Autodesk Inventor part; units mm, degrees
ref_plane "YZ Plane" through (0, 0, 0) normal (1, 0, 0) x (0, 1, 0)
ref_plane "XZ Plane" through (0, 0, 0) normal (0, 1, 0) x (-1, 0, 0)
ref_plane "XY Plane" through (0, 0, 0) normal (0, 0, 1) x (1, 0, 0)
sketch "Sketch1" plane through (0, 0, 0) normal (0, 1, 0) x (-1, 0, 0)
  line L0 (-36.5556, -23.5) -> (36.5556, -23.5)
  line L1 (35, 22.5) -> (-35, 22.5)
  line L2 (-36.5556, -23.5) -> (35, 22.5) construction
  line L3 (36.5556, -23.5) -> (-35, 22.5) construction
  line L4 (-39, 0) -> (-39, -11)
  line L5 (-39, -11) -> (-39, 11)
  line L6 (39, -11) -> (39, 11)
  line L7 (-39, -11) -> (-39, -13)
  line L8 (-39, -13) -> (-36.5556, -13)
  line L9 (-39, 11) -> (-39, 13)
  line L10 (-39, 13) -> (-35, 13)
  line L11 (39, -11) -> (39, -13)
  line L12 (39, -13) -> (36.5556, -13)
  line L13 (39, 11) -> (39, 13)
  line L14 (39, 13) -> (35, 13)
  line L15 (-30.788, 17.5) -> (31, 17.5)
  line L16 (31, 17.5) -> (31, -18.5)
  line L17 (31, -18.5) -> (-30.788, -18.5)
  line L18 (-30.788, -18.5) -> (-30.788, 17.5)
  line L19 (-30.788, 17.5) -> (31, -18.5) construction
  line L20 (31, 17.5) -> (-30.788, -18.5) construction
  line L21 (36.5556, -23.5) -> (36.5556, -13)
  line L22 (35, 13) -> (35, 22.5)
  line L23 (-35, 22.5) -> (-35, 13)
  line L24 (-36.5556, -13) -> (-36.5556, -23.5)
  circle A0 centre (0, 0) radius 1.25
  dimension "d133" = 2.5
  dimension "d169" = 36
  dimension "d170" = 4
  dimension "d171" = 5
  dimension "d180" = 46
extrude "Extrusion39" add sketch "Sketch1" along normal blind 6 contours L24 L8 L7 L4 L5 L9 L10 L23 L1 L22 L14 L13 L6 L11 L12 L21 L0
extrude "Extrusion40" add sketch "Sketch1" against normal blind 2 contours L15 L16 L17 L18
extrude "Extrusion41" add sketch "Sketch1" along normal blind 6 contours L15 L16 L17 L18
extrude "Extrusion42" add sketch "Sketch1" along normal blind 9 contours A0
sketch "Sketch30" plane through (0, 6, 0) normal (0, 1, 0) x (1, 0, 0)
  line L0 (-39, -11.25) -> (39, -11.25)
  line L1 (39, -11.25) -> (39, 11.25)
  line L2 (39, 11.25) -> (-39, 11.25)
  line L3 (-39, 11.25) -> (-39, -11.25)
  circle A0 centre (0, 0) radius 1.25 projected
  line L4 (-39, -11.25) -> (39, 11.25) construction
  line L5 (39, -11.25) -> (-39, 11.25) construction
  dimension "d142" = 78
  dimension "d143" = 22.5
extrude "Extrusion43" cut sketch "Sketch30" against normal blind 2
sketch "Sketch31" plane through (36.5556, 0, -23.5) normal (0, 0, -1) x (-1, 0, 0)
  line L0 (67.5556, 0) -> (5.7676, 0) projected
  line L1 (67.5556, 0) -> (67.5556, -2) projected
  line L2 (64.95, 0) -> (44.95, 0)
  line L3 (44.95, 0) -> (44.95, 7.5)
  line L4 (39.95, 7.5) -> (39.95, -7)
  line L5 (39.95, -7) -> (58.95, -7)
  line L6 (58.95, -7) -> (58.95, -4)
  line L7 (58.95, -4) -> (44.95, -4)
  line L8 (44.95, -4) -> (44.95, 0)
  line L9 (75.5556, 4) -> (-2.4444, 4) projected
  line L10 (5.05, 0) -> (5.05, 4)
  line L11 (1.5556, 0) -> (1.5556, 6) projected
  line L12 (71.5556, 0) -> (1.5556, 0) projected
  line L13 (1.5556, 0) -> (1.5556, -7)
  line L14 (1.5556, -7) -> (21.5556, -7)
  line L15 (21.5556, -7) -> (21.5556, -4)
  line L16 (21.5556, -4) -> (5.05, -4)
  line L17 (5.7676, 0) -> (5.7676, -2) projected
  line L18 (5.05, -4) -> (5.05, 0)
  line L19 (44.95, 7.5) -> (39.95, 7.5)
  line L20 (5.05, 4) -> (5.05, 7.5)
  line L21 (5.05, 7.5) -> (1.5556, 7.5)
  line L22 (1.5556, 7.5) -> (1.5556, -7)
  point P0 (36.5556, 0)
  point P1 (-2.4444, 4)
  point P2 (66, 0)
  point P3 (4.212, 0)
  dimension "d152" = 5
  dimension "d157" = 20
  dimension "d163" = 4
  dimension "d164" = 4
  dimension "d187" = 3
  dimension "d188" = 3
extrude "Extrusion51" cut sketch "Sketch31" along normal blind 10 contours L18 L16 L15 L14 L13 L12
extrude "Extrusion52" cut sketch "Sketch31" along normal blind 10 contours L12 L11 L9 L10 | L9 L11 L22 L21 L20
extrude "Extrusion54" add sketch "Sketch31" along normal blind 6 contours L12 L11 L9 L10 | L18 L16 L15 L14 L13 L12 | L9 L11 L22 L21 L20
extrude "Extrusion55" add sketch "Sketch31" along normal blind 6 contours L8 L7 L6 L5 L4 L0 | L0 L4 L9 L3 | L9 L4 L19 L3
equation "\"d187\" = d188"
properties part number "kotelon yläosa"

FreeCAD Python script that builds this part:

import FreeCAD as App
import Part
import Sketcher
from FreeCAD import Vector

doc = App.newDocument("Part")
params = doc.addObject("Spreadsheet::Sheet", "Params")
for row, (alias, value) in enumerate([
    ("sketch1_width", "4 mm"),
    ("sketch1_height", "36 mm"),
    ("sketch1_width2", "70 mm"),
    ("sketch1_height2", "26 mm"),
    ("sketch1_height3", "10.5 mm"),
    ("pad1_length", "6 mm"),
    ("sketch2_diameter", "2.5 mm"),
    ("sketch2_height", "36 mm"),
    ("pad2_length", "2 mm"),
    ("sketch3_diameter", "2.5 mm"),
    ("sketch3_height", "36 mm"),
    ("pad3_length", "6 mm"),
    ("sketch4_diameter", "2.5 mm"),
    ("pad4_length", "9 mm"),
    ("sketch5_width", "78 mm"),
    ("sketch5_height", "22.5 mm"),
    ("sketch5_diameter", "2.5 mm"),
    ("pocket1_length", "2 mm"),
    ("sketch6_width", "20 mm"),
    ("sketch6_height", "4 mm"),
    ("sketch6_height2", "3 mm"),
    ("pocket2_length", "10 mm"),
    ("sketch7_height", "7.5 mm"),
    ("pocket3_length", "10 mm"),
    ("sketch8_width", "20 mm"),
    ("sketch8_height", "3 mm"),
    ("sketch8_height2", "11.5 mm"),
    ("pad5_length", "6 mm"),
    ("sketch9_width", "5 mm"),
    ("sketch9_height", "3 mm"),
    ("sketch9_width2", "19 mm"),
    ("sketch9_height2", "11.5 mm"),
    ("pad6_length", "6 mm"),
], start=1):
    params.set(f"A{row}", alias)
    params.set(f"B{row}", "=" + value)
    params.setAlias(f"B{row}", alias)

body = doc.addObject("PartDesign::Body", "Body")
body.AllowCompound = True

sketch1 = doc.addObject("Sketcher::SketchObject", "Sketch")
body.addObject(sketch1)
sketch1.AttachmentSupport = (doc.XZ_Plane, [""])
sketch1.MapMode = "FlatFace"
sketch1.addGeometry([
    Part.LineSegment(Vector(36.5556, -13, 0), Vector(36.5556, -23.5, 0)),
    Part.LineSegment(Vector(36.5556, -23.5, 0), Vector(-36.5556, -23.5, 0)),
    Part.LineSegment(Vector(-36.5556, -23.5, 0), Vector(-36.5556, -13, 0)),
    Part.LineSegment(Vector(-36.5556, -13, 0), Vector(-39, -13, 0)),
    Part.LineSegment(Vector(-39, -13, 0), Vector(-39, 13, 0)),
    Part.LineSegment(Vector(-39, 13, 0), Vector(-35, 13, 0)),
    Part.LineSegment(Vector(-35, 13, 0), Vector(-35, 22.5, 0)),
    Part.LineSegment(Vector(-35, 22.5, 0), Vector(35, 22.5, 0)),
    Part.LineSegment(Vector(35, 22.5, 0), Vector(35, 13, 0)),
    Part.LineSegment(Vector(35, 13, 0), Vector(39, 13, 0)),
    Part.LineSegment(Vector(39, 13, 0), Vector(39, -13, 0)),
    Part.LineSegment(Vector(39, -13, 0), Vector(36.5556, -13, 0)),
    Part.LineSegment(Vector(30.788, -18.5, 0), Vector(30.788, 17.5, 0)),
    Part.LineSegment(Vector(30.788, 17.5, 0), Vector(-31, 17.5, 0)),
    Part.LineSegment(Vector(-31, 17.5, 0), Vector(-31, -18.5, 0)),
    Part.LineSegment(Vector(-31, -18.5, 0), Vector(30.788, -18.5, 0)),
], False)
sketch1.addConstraint([
    Sketcher.Constraint("Coincident", 0, 2, 1, 1),
    Sketcher.Constraint("Coincident", 1, 2, 2, 1),
    Sketcher.Constraint("Coincident", 2, 2, 3, 1),
    Sketcher.Constraint("Coincident", 3, 2, 4, 1),
    Sketcher.Constraint("Coincident", 4, 2, 5, 1),
    Sketcher.Constraint("Coincident", 5, 2, 6, 1),
    Sketcher.Constraint("Coincident", 6, 2, 7, 1),
    Sketcher.Constraint("Coincident", 7, 2, 8, 1),
    Sketcher.Constraint("Coincident", 8, 2, 9, 1),
    Sketcher.Constraint("Coincident", 9, 2, 10, 1),
    Sketcher.Constraint("Coincident", 10, 2, 11, 1),
    Sketcher.Constraint("Coincident", 11, 2, 0, 1),
    Sketcher.Constraint("Coincident", 12, 2, 13, 1),
    Sketcher.Constraint("Coincident", 13, 2, 14, 1),
    Sketcher.Constraint("Coincident", 14, 2, 15, 1),
    Sketcher.Constraint("Coincident", 15, 2, 12, 1),
    Sketcher.Constraint("Vertical", 0),
    Sketcher.Constraint("Horizontal", 1),
    Sketcher.Constraint("Vertical", 2),
    Sketcher.Constraint("Horizontal", 3),
    Sketcher.Constraint("Vertical", 4),
    Sketcher.Constraint("Horizontal", 5),
    Sketcher.Constraint("Vertical", 6),
    Sketcher.Constraint("Horizontal", 7),
    Sketcher.Constraint("Vertical", 8),
    Sketcher.Constraint("Horizontal", 9),
    Sketcher.Constraint("Vertical", 10),
    Sketcher.Constraint("Horizontal", 11),
    Sketcher.Constraint("Vertical", 12),
    Sketcher.Constraint("Horizontal", 13),
    Sketcher.Constraint("Vertical", 14),
    Sketcher.Constraint("Horizontal", 15),
    Sketcher.Constraint("Symmetric", 3, 2, 9, 2, -1, 1),
    Sketcher.Constraint("Symmetric", 5, 2, 8, 2, -2),
    Sketcher.Constraint("Symmetric", 2, 2, 11, 2, -2),
    Sketcher.Constraint("DistanceX", 5, 1, 5, 2, 4.0),
    Sketcher.Constraint("DistanceY", 12, 1, 12, 2, 36.0),
    Sketcher.Constraint("DistanceY", 1, 2, 6, 2, 46.0),
    Sketcher.Constraint("DistanceY", 12, 2, 7, 2, 5.0),
    Sketcher.Constraint("DistanceX", 5, 2, 13, 2, 4.0),
    Sketcher.Constraint("DistanceX", 7, 1, 7, 2, 70.0),
    Sketcher.Constraint("DistanceY", 4, 1, 4, 2, 26.0),
    Sketcher.Constraint("DistanceY", 0, 2, 0, 1, 10.5),
    Sketcher.Constraint("DistanceX", 13, 2, 13, 1, 61.788),
    Sketcher.Constraint("DistanceX", 1, 2, 1, 1, 73.1112),
])
sketch1.setExpression("Constraints[35]", "Params.sketch1_width")
sketch1.setExpression("Constraints[36]", "Params.sketch1_height")
sketch1.setExpression("Constraints[40]", "Params.sketch1_width2")
sketch1.setExpression("Constraints[41]", "Params.sketch1_height2")
sketch1.setExpression("Constraints[42]", "Params.sketch1_height3")
pad1 = doc.addObject("PartDesign::Pad", "Pad")
body.addObject(pad1)
pad1.Profile = sketch1
pad1.setExpression("Length", "Params.pad1_length")
pad1.Reversed = True

sketch2 = doc.addObject("Sketcher::SketchObject", "Sketch001")
body.addObject(sketch2)
sketch2.AttachmentSupport = (doc.XZ_Plane, [""])
sketch2.MapMode = "FlatFace"
sketch2.addGeometry([
    Part.LineSegment(Vector(-31, 17.5, 0), Vector(30.788, 17.5, 0)),
    Part.LineSegment(Vector(30.788, 17.5, 0), Vector(30.788, -18.5, 0)),
    Part.LineSegment(Vector(30.788, -18.5, 0), Vector(-31, -18.5, 0)),
    Part.LineSegment(Vector(-31, -18.5, 0), Vector(-31, 17.5, 0)),
    Part.Circle(Vector(0, 0, 0), Vector(0, 0, 1), 1.25),
], False)
sketch2.addConstraint([
    Sketcher.Constraint("Coincident", 0, 2, 1, 1),
    Sketcher.Constraint("Coincident", 1, 2, 2, 1),
    Sketcher.Constraint("Coincident", 2, 2, 3, 1),
    Sketcher.Constraint("Coincident", 3, 2, 0, 1),
    Sketcher.Constraint("Horizontal", 0),
    Sketcher.Constraint("Vertical", 1),
    Sketcher.Constraint("Horizontal", 2),
    Sketcher.Constraint("Vertical", 3),
    Sketcher.Constraint("Coincident", 4, 3, -1, 1),
    Sketcher.Constraint("Diameter", 4, 2.5),
    Sketcher.Constraint("DistanceY", 1, 2, 1, 1, 36.0),
    Sketcher.Constraint("DistanceX", 2, 2, -1, 1, 31.0),
    Sketcher.Constraint("DistanceY", -1, 1, 0, 2, 17.5),
    Sketcher.Constraint("DistanceX", 0, 1, 0, 2, 61.788),
])
sketch2.setExpression("Constraints[9]", "Params.sketch2_diameter")
sketch2.setExpression("Constraints[10]", "Params.sketch2_height")
pad2 = doc.addObject("PartDesign::Pad", "Pad001")
body.addObject(pad2)
pad2.Profile = sketch2
pad2.setExpression("Length", "Params.pad2_length")

sketch3 = doc.addObject("Sketcher::SketchObject", "Sketch002")
body.addObject(sketch3)
sketch3.AttachmentSupport = (doc.XZ_Plane, [""])
sketch3.MapMode = "FlatFace"
sketch3.addGeometry([
    Part.LineSegment(Vector(-31, 17.5, 0), Vector(30.788, 17.5, 0)),
    Part.LineSegment(Vector(30.788, 17.5, 0), Vector(30.788, -18.5, 0)),
    Part.LineSegment(Vector(30.788, -18.5, 0), Vector(-31, -18.5, 0)),
    Part.LineSegment(Vector(-31, -18.5, 0), Vector(-31, 17.5, 0)),
    Part.Circle(Vector(0, 0, 0), Vector(0, 0, 1), 1.25),
], False)
sketch3.addConstraint([
    Sketcher.Constraint("Coincident", 0, 2, 1, 1),
    Sketcher.Constraint("Coincident", 1, 2, 2, 1),
    Sketcher.Constraint("Coincident", 2, 2, 3, 1),
    Sketcher.Constraint("Coincident", 3, 2, 0, 1),
    Sketcher.Constraint("Horizontal", 0),
    Sketcher.Constraint("Vertical", 1),
    Sketcher.Constraint("Horizontal", 2),
    Sketcher.Constraint("Vertical", 3),
    Sketcher.Constraint("Coincident", 4, 3, -1, 1),
    Sketcher.Constraint("Diameter", 4, 2.5),
    Sketcher.Constraint("DistanceY", 1, 2, 1, 1, 36.0),
    Sketcher.Constraint("DistanceX", 2, 2, -1, 1, 31.0),
    Sketcher.Constraint("DistanceY", -1, 1, 0, 2, 17.5),
    Sketcher.Constraint("DistanceX", 0, 1, 0, 2, 61.788),
])
sketch3.setExpression("Constraints[9]", "Params.sketch3_diameter")
sketch3.setExpression("Constraints[10]", "Params.sketch3_height")
pad3 = doc.addObject("PartDesign::Pad", "Pad002")
body.addObject(pad3)
pad3.Profile = sketch3
pad3.setExpression("Length", "Params.pad3_length")
pad3.Reversed = True

sketch4 = doc.addObject("Sketcher::SketchObject", "Sketch003")
body.addObject(sketch4)
sketch4.AttachmentSupport = (doc.XZ_Plane, [""])
sketch4.MapMode = "FlatFace"
sketch4.addGeometry(Part.Circle(Vector(0, 0, 0), Vector(0, 0, 1), 1.25), False)
sketch4.addConstraint([
    Sketcher.Constraint("Coincident", 0, 3, -1, 1),
    Sketcher.Constraint("Diameter", 0, 2.5),
])
sketch4.setExpression("Constraints[1]", "Params.sketch4_diameter")
pad4 = doc.addObject("PartDesign::Pad", "Pad003")
body.addObject(pad4)
pad4.Profile = sketch4
pad4.setExpression("Length", "Params.pad4_length")
pad4.Reversed = True

sketch5 = doc.addObject("Sketcher::SketchObject", "Sketch004")
body.addObject(sketch5)
sketch5.AttachmentSupport = (doc.XZ_Plane, [""])
sketch5.MapMode = "FlatFace"
sketch5.AttachmentOffset = App.Placement(Vector(0, 0, -6), App.Rotation())
sketch5.addGeometry([
    Part.LineSegment(Vector(-39, -11.25, 0), Vector(-39, 11.25, 0)),
    Part.LineSegment(Vector(-39, 11.25, 0), Vector(39, 11.25, 0)),
    Part.LineSegment(Vector(39, 11.25, 0), Vector(39, -11.25, 0)),
    Part.LineSegment(Vector(39, -11.25, 0), Vector(-39, -11.25, 0)),
    Part.Circle(Vector(0, 0, 0), Vector(0, 0, 1), 1.25),
], False)
sketch5.addConstraint([
    Sketcher.Constraint("Coincident", 0, 2, 1, 1),
    Sketcher.Constraint("Coincident", 1, 2, 2, 1),
    Sketcher.Constraint("Coincident", 2, 2, 3, 1),
    Sketcher.Constraint("Coincident", 3, 2, 0, 1),
    Sketcher.Constraint("Vertical", 0),
    Sketcher.Constraint("Horizontal", 1),
    Sketcher.Constraint("Vertical", 2),
    Sketcher.Constraint("Horizontal", 3),
    Sketcher.Constraint("Coincident", 4, 3, -1, 1),
    Sketcher.Constraint("Symmetric", 0, 2, 2, 2, -1, 1),
    Sketcher.Constraint("DistanceX", 1, 1, 1, 2, 78.0),
    Sketcher.Constraint("DistanceY", 0, 1, 0, 2, 22.5),
    Sketcher.Constraint("Diameter", 4, 2.5),
])
sketch5.setExpression("Constraints[10]", "Params.sketch5_width")
sketch5.setExpression("Constraints[11]", "Params.sketch5_height")
sketch5.setExpression("Constraints[12]", "Params.sketch5_diameter")
pocket1 = doc.addObject("PartDesign::Pocket", "Pocket")
body.addObject(pocket1)
pocket1.Profile = sketch5
pocket1.setExpression("Length", "Params.pocket1_length")
pocket1.Reversed = True

sketch6 = doc.addObject("Sketcher::SketchObject", "Sketch005")
body.addObject(sketch6)
sketch6.AttachmentSupport = (doc.XY_Plane, [""])
sketch6.MapMode = "FlatFace"
sketch6.AttachmentOffset = App.Placement(Vector(0, 0, -23.5), App.Rotation())
sketch6.addGeometry([
    Part.LineSegment(Vector(31.5056, -4, 0), Vector(31.5056, 0, 0)),
    Part.LineSegment(Vector(31.5056, 0, 0), Vector(35, 0, 0)),
    Part.LineSegment(Vector(35, 0, 0), Vector(35, -7, 0)),
    Part.LineSegment(Vector(35, -7, 0), Vector(15, -7, 0)),
    Part.LineSegment(Vector(15, -7, 0), Vector(15, -4, 0)),
    Part.LineSegment(Vector(15, -4, 0), Vector(31.5056, -4, 0)),
], False)
sketch6.addConstraint([
    Sketcher.Constraint("Coincident", 0, 2, 1, 1),
    Sketcher.Constraint("Coincident", 1, 2, 2, 1),
    Sketcher.Constraint("Coincident", 2, 2, 3, 1),
    Sketcher.Constraint("Coincident", 3, 2, 4, 1),
    Sketcher.Constraint("Coincident", 4, 2, 5, 1),
    Sketcher.Constraint("Coincident", 5, 2, 0, 1),
    Sketcher.Constraint("Vertical", 0),
    Sketcher.Constraint("Horizontal", 1),
    Sketcher.Constraint("Vertical", 2),
    Sketcher.Constraint("Horizontal", 3),
    Sketcher.Constraint("Vertical", 4),
    Sketcher.Constraint("Horizontal", 5),
    Sketcher.Constraint("PointOnObject", 0, 2, -1),
    Sketcher.Constraint("DistanceX", 3, 2, 3, 1, 20.0),
    Sketcher.Constraint("DistanceY", 0, 1, 0, 2, 4.0),
    Sketcher.Constraint("DistanceY", 4, 1, 4, 2, 3.0),
    Sketcher.Constraint("DistanceX", -1, 1, 1, 2, 35.0),
    Sketcher.Constraint("DistanceX", 1, 1, 1, 2, 3.4944),
])
sketch6.setExpression("Constraints[13]", "Params.sketch6_width")
sketch6.setExpression("Constraints[14]", "Params.sketch6_height")
sketch6.setExpression("Constraints[15]", "Params.sketch6_height2")
pocket2 = doc.addObject("PartDesign::Pocket", "Pocket001")
body.addObject(pocket2)
pocket2.Profile = sketch6
pocket2.setExpression("Length", "Params.pocket2_length")

sketch7 = doc.addObject("Sketcher::SketchObject", "Sketch006")
body.addObject(sketch7)
sketch7.AttachmentSupport = (doc.XY_Plane, [""])
sketch7.MapMode = "FlatFace"
sketch7.AttachmentOffset = App.Placement(Vector(0, 0, -23.5), App.Rotation())
sketch7.addGeometry([
    Part.LineSegment(Vector(35, 0, 0), Vector(31.5056, 0, 0)),
    Part.LineSegment(Vector(31.5056, 0, 0), Vector(31.5056, 7.5, 0)),
    Part.LineSegment(Vector(31.5056, 7.5, 0), Vector(35, 7.5, 0)),
    Part.LineSegment(Vector(35, 7.5, 0), Vector(35, 0, 0)),
], False)
sketch7.addConstraint([
    Sketcher.Constraint("Coincident", 0, 2, 1, 1),
    Sketcher.Constraint("Coincident", 1, 2, 2, 1),
    Sketcher.Constraint("Coincident", 2, 2, 3, 1),
    Sketcher.Constraint("Coincident", 3, 2, 0, 1),
    Sketcher.Constraint("Horizontal", 0),
    Sketcher.Constraint("Vertical", 1),
    Sketcher.Constraint("Horizontal", 2),
    Sketcher.Constraint("Vertical", 3),
    Sketcher.Constraint("PointOnObject", 0, 2, -1),
    Sketcher.Constraint("DistanceY", 1, 1, 1, 2, 7.5),
    Sketcher.Constraint("DistanceX", -1, 1, 2, 2, 35.0),
    Sketcher.Constraint("DistanceX", 0, 2, 0, 1, 3.4944),
])
sketch7.setExpression("Constraints[9]", "Params.sketch7_height")
pocket3 = doc.addObject("PartDesign::Pocket", "Pocket002")
body.addObject(pocket3)
pocket3.Profile = sketch7
pocket3.setExpression("Length", "Params.pocket3_length")

sketch8 = doc.addObject("Sketcher::SketchObject", "Sketch007")
body.addObject(sketch8)
sketch8.AttachmentSupport = (doc.XY_Plane, [""])
sketch8.MapMode = "FlatFace"
sketch8.AttachmentOffset = App.Placement(Vector(0, 0, -23.5), App.Rotation())
sketch8.addGeometry([
    Part.LineSegment(Vector(35, -7, 0), Vector(15, -7, 0)),
    Part.LineSegment(Vector(15, -7, 0), Vector(15, -4, 0)),
    Part.LineSegment(Vector(15, -4, 0), Vector(31.5056, -4, 0)),
    Part.LineSegment(Vector(31.5056, -4, 0), Vector(31.5056, 7.5, 0)),
    Part.LineSegment(Vector(31.5056, 7.5, 0), Vector(35, 7.5, 0)),
    Part.LineSegment(Vector(35, 7.5, 0), Vector(35, -7, 0)),
], False)
sketch8.addConstraint([
    Sketcher.Constraint("Coincident", 0, 2, 1, 1),
    Sketcher.Constraint("Coincident", 1, 2, 2, 1),
    Sketcher.Constraint("Coincident", 2, 2, 3, 1),
    Sketcher.Constraint("Coincident", 3, 2, 4, 1),
    Sketcher.Constraint("Coincident", 4, 2, 5, 1),
    Sketcher.Constraint("Coincident", 5, 2, 0, 1),
    Sketcher.Constraint("Horizontal", 0),
    Sketcher.Constraint("Vertical", 1),
    Sketcher.Constraint("Horizontal", 2),
    Sketcher.Constraint("Vertical", 3),
    Sketcher.Constraint("Horizontal", 4),
    Sketcher.Constraint("Vertical", 5),
    Sketcher.Constraint("DistanceX", 0, 2, 0, 1, 20.0),
    Sketcher.Constraint("DistanceY", 1, 1, 1, 2, 3.0),
    Sketcher.Constraint("DistanceY", 1, 2, -1, 1, 4.0),
    Sketcher.Constraint("DistanceY", 3, 1, 3, 2, 11.5),
    Sketcher.Constraint("DistanceX", -1, 1, 0, 2, 15.0),
    Sketcher.Constraint("DistanceX", 2, 1, 2, 2, 16.5056),
])
sketch8.setExpression("Constraints[12]", "Params.sketch8_width")
sketch8.setExpression("Constraints[13]", "Params.sketch8_height")
sketch8.setExpression("Constraints[15]", "Params.sketch8_height2")
pad5 = doc.addObject("PartDesign::Pad", "Pad004")
body.addObject(pad5)
pad5.Profile = sketch8
pad5.setExpression("Length", "Params.pad5_length")
pad5.Reversed = True

sketch9 = doc.addObject("Sketcher::SketchObject", "Sketch008")
body.addObject(sketch9)
sketch9.AttachmentSupport = (doc.XY_Plane, [""])
sketch9.MapMode = "FlatFace"
sketch9.AttachmentOffset = App.Placement(Vector(0, 0, -23.5), App.Rotation())
sketch9.addGeometry([
    Part.LineSegment(Vector(-8.3944, -4, 0), Vector(-8.3944, 7.5, 0)),
    Part.LineSegment(Vector(-8.3944, 7.5, 0), Vector(-3.3944, 7.5, 0)),
    Part.LineSegment(Vector(-3.3944, 7.5, 0), Vector(-3.3944, -7, 0)),
    Part.LineSegment(Vector(-3.3944, -7, 0), Vector(-22.3944, -7, 0)),
    Part.LineSegment(Vector(-22.3944, -7, 0), Vector(-22.3944, -4, 0)),
    Part.LineSegment(Vector(-22.3944, -4, 0), Vector(-8.3944, -4, 0)),
], False)
sketch9.addConstraint([
    Sketcher.Constraint("Coincident", 0, 2, 1, 1),
    Sketcher.Constraint("Coincident", 1, 2, 2, 1),
    Sketcher.Constraint("Coincident", 2, 2, 3, 1),
    Sketcher.Constraint("Coincident", 3, 2, 4, 1),
    Sketcher.Constraint("Coincident", 4, 2, 5, 1),
    Sketcher.Constraint("Coincident", 5, 2, 0, 1),
    Sketcher.Constraint("Vertical", 0),
    Sketcher.Constraint("Horizontal", 1),
    Sketcher.Constraint("Vertical", 2),
    Sketcher.Constraint("Horizontal", 3),
    Sketcher.Constraint("Vertical", 4),
    Sketcher.Constraint("Horizontal", 5),
    Sketcher.Constraint("DistanceX", 1, 1, 1, 2, 5.0),
    Sketcher.Constraint("DistanceY", 4, 1, 4, 2, 3.0),
    Sketcher.Constraint("DistanceY", 4, 2, -1, 1, 4.0),
    Sketcher.Constraint("DistanceX", 3, 2, 3, 1, 19.0),
    Sketcher.Constraint("DistanceY", 0, 1, 0, 2, 11.5),
    Sketcher.Constraint("DistanceX", 0, 2, -1, 1, 8.3944),
])
sketch9.setExpression("Constraints[12]", "Params.sketch9_width")
sketch9.setExpression("Constraints[13]", "Params.sketch9_height")
sketch9.setExpression("Constraints[15]", "Params.sketch9_width2")
sketch9.setExpression("Constraints[16]", "Params.sketch9_height2")
pad6 = doc.addObject("PartDesign::Pad", "Pad005")
body.addObject(pad6)
pad6.Profile = sketch9
pad6.setExpression("Length", "Params.pad6_length")
pad6.Reversed = True

doc.recompute()
